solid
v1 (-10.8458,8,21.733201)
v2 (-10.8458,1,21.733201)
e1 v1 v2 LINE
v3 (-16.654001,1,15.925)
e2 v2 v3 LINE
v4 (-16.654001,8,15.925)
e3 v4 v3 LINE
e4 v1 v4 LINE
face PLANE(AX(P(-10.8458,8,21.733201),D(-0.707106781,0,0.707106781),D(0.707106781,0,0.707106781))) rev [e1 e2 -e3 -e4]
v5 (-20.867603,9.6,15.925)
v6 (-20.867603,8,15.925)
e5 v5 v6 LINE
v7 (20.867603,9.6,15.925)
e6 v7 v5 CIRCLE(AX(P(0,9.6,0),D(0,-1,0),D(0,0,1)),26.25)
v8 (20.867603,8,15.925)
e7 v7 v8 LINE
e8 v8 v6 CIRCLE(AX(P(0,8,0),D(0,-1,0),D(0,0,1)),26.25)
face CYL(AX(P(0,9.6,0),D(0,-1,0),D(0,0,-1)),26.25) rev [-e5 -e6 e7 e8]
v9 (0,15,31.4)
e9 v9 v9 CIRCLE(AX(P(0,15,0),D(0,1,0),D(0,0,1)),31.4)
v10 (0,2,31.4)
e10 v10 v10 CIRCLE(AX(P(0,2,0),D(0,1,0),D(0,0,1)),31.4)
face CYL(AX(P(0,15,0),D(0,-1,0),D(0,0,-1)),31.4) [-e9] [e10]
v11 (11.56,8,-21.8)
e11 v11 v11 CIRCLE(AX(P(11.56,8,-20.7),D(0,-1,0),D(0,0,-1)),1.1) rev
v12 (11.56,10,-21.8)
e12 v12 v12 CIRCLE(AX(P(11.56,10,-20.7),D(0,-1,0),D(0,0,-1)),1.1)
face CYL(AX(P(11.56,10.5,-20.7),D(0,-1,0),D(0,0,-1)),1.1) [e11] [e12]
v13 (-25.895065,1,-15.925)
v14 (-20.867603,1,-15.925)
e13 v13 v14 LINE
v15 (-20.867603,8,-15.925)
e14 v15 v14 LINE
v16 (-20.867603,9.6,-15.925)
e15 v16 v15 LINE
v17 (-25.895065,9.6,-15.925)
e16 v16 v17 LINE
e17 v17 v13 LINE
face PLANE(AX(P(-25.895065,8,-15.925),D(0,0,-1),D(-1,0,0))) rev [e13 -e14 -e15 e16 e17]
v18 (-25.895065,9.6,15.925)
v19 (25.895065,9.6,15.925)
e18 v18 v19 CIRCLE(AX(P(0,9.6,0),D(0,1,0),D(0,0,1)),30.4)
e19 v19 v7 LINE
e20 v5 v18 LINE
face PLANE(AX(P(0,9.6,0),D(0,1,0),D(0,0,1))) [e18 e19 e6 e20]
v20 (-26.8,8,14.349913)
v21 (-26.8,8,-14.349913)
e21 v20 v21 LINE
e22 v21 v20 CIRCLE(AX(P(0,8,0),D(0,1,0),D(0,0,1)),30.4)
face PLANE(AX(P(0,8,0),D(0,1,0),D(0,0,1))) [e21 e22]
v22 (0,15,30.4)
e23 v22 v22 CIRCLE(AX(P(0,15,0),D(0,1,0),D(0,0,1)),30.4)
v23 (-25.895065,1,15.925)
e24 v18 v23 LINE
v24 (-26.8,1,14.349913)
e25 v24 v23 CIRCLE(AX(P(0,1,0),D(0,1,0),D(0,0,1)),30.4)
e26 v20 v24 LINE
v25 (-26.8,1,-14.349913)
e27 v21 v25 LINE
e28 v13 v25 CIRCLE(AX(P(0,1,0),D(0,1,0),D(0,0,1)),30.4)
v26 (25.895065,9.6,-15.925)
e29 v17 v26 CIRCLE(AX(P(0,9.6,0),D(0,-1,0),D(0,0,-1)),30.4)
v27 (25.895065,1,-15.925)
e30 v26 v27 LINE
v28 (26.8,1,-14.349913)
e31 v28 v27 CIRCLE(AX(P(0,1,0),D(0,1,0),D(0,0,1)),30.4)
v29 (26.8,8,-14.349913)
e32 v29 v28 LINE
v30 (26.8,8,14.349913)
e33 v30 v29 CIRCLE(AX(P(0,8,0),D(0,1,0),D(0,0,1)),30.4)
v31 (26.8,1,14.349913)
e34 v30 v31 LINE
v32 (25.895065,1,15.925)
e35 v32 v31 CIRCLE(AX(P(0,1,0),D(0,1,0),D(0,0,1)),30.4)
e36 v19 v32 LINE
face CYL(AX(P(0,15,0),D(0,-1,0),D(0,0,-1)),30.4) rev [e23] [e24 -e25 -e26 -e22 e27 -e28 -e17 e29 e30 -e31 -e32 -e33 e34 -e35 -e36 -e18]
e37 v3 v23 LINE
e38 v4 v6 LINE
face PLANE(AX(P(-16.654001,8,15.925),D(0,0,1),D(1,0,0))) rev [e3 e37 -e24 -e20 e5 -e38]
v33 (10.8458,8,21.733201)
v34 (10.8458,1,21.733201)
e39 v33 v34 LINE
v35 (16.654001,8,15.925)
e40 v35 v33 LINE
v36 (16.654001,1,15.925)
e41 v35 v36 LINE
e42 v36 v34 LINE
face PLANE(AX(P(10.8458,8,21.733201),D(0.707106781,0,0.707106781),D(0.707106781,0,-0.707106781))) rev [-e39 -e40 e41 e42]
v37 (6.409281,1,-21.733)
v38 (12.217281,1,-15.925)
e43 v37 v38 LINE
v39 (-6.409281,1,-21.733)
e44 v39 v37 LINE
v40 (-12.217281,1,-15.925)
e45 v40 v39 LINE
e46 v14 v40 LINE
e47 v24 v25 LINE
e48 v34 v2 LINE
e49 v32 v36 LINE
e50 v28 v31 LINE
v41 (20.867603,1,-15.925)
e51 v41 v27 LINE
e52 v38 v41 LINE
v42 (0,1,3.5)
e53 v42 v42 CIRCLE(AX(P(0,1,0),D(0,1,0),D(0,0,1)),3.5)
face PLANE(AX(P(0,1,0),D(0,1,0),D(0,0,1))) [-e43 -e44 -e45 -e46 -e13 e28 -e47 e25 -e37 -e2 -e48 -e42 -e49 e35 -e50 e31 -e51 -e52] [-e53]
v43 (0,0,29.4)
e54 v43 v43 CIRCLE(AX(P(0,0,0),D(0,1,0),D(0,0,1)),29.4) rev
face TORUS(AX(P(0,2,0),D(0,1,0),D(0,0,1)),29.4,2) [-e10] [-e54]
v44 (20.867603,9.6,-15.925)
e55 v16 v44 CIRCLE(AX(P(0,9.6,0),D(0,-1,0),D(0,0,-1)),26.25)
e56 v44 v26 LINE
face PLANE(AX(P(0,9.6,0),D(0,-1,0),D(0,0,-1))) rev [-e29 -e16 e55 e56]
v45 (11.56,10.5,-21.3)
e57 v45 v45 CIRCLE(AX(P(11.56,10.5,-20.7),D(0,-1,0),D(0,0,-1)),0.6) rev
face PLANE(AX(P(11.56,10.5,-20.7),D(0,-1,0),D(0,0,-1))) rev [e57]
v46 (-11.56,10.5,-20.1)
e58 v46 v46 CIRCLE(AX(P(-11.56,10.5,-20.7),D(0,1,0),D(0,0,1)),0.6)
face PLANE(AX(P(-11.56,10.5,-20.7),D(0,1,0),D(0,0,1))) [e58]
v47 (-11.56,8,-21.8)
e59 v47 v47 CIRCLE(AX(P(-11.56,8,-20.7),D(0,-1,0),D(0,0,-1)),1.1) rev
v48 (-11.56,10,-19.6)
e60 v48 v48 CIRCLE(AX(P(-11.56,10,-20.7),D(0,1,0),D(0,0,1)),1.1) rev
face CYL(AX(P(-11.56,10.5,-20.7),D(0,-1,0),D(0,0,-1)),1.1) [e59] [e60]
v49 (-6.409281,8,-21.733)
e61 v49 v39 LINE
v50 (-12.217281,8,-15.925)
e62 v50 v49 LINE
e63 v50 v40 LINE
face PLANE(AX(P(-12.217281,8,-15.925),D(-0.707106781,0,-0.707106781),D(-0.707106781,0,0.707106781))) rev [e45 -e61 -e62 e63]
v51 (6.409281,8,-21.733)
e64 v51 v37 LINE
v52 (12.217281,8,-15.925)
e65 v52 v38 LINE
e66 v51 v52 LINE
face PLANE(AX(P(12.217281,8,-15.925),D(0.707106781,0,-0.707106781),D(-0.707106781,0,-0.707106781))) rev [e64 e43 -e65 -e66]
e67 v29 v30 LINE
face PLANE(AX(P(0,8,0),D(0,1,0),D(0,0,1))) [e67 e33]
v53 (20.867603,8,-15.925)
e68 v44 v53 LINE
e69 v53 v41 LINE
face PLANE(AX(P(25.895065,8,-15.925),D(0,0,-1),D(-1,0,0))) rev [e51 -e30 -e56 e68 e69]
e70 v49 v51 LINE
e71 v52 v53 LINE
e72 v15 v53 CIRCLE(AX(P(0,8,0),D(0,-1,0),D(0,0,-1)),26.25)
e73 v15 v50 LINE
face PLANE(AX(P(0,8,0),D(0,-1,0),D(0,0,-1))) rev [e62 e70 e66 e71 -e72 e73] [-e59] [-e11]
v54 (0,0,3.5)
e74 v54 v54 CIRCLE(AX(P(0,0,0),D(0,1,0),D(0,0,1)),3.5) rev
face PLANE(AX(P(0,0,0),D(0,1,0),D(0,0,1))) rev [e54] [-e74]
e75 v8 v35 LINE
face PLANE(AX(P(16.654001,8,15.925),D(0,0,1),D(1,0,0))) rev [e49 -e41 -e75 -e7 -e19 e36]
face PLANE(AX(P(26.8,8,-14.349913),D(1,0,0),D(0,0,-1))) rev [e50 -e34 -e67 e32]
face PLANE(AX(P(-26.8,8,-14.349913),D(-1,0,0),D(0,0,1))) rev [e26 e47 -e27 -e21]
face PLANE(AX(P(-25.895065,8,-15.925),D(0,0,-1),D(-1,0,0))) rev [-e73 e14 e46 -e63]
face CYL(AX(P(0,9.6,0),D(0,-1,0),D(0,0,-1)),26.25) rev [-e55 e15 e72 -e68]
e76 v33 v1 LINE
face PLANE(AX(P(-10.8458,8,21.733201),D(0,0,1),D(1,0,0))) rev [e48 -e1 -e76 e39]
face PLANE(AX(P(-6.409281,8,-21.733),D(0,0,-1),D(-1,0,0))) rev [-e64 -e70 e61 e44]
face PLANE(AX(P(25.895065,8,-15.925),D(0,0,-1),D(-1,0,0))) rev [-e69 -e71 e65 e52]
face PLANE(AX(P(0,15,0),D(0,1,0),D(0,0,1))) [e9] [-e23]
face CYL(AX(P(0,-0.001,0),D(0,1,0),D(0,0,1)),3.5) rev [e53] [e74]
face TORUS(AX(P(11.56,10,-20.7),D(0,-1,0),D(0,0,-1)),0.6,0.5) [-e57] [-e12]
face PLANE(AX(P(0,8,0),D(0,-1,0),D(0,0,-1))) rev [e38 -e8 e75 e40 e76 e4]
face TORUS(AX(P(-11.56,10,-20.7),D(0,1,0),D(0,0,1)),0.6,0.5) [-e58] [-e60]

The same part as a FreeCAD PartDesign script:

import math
import FreeCAD as App
import Part
import Sketcher


def edges_at(feature, points):
    """Names of the edges that pass closest to the given points."""
    edges = feature.Shape.Edges
    near = lambda p: min(range(len(edges)), key=lambda i: edges[i].distToShape(Part.Vertex(*p))[0])
    return sorted({f"Edge{near(p) + 1}" for p in points})


def faces_at(feature, points):
    """Names of the faces that lie closest to the given points."""
    faces = feature.Shape.Faces
    near = lambda p: min(range(len(faces)), key=lambda i: faces[i].distToShape(Part.Vertex(*p))[0])
    return sorted({f"Face{near(p) + 1}" for p in points})

doc = App.newDocument("Part")
body = doc.addObject("PartDesign::Body", "Body")

# Sketch on XZ plane
sketch1 = doc.addObject("Sketcher::SketchObject", "Sketch")
body.addObject(sketch1)
sketch1.AttachmentSupport = (doc.XZ_Plane, [""])
sketch1.MapMode = "FlatFace"
sketch1.addGeometry(Part.Circle(App.Vector(0, 0, 0), App.Vector(0, 0, 1), 31), False)
sketch1.addConstraint(Sketcher.Constraint("Coincident", 0, 3, -1, 1))
sketch1.addConstraint(Sketcher.Constraint("Diameter", 0, 62.8))
pad1 = doc.addObject("PartDesign::Pad", "Pad")
body.addObject(pad1)
pad1.Profile = sketch1
pad1.Length = 15
pad1.Reversed = True
doc.recompute()

thickness = doc.addObject("PartDesign::Thickness", "Thickness")
body.addObject(thickness)
thickness.Base = (pad1, faces_at(pad1, [(0, 15, 0)]))
thickness.Value = 1
thickness.Reversed = True
thickness.Join = "Intersection"
doc.recompute()

fillet = doc.addObject("PartDesign::Fillet", "Fillet")
body.addObject(fillet)
fillet.Base = (thickness, edges_at(thickness, [(0, 0, -31.4)]))
fillet.Radius = 2

# Sketch on XZ plane
sketch2 = doc.addObject("Sketcher::SketchObject", "Sketch001")
body.addObject(sketch2)
sketch2.AttachmentSupport = (doc.XZ_Plane, [""])
sketch2.MapMode = "FlatFace"
sketch2.AttachmentOffset = App.Placement(App.Vector(0, 0, -1), App.Rotation())
sketch2.addGeometry(Part.Circle(App.Vector(0, 0, 0), App.Vector(0, 0, 1), 3.5), False)
sketch2.addConstraint(Sketcher.Constraint("Coincident", 0, 3, -1, 1))
sketch2.addConstraint(Sketcher.Constraint("Diameter", 0, 7.0))
pocket1 = doc.addObject("PartDesign::Pocket", "Pocket")
body.addObject(pocket1)
pocket1.Profile = sketch2
pocket1.Type = "UpToFirst"
pocket1.Reversed = True

# Sketch on XZ plane
sketch3 = doc.addObject("Sketcher::SketchObject", "Sketch002")
body.addObject(sketch3)
sketch3.AttachmentSupport = (doc.XZ_Plane, [""])
sketch3.MapMode = "FlatFace"
sketch3.AttachmentOffset = App.Placement(App.Vector(0, 0, -1), App.Rotation())
sketch3.addGeometry(Part.LineSegment(App.Vector(-26, -16, 0), App.Vector(-12, -16, 0)), False)
sketch3.addGeometry(Part.LineSegment(App.Vector(-12, -16, 0), App.Vector(-6, -22, 0)), False)
sketch3.addGeometry(Part.LineSegment(App.Vector(-6, -22, 0), App.Vector(6, -22, 0)), False)
sketch3.addGeometry(Part.LineSegment(App.Vector(6, -22, 0), App.Vector(12, -16, 0)), False)
sketch3.addGeometry(Part.LineSegment(App.Vector(12, -16, 0), App.Vector(26, -16, 0)), False)
sketch3.addGeometry(Part.ArcOfCircle(Part.Circle(App.Vector(0, 0, 0), App.Vector(0, 0, 1), 30), math.radians(-148), math.radians(-32)), False)
sketch3.addGeometry(Part.LineSegment(App.Vector(-11, 22, 0), App.Vector(-17, 16, 0)), False)
sketch3.addGeometry(Part.LineSegment(App.Vector(-17, 16, 0), App.Vector(-26, 16, 0)), False)
sketch3.addGeometry(Part.ArcOfCircle(Part.Circle(App.Vector(0, 0, 0), App.Vector(0, 0, 1), 30), math.radians(32), math.radians(148)), False)
sketch3.addGeometry(Part.LineSegment(App.Vector(26, 16, 0), App.Vector(17, 16, 0)), False)
sketch3.addGeometry(Part.LineSegment(App.Vector(17, 16, 0), App.Vector(11, 22, 0)), False)
sketch3.addGeometry(Part.LineSegment(App.Vector(11, 22, 0), App.Vector(-11, 22, 0)), False)
sketch3.addGeometry(Part.LineSegment(App.Vector(27, -14, 0), App.Vector(27, 14, 0)), False)
sketch3.addGeometry(Part.ArcOfCircle(Part.Circle(App.Vector(0, 0, 0), App.Vector(0, 0, 1), 30), math.radians(-28), math.radians(28)), False)
sketch3.addGeometry(Part.LineSegment(App.Vector(-27, 14, 0), App.Vector(-27, -14, 0)), False)
sketch3.addGeometry(Part.ArcOfCircle(Part.Circle(App.Vector(0, 0, 0), App.Vector(0, 0, 1), 30), math.radians(152), math.radians(208)), False)
sketch3.addConstraint(Sketcher.Constraint("Coincident", 0, 2, 1, 1))
sketch3.addConstraint(Sketcher.Constraint("Coincident", 1, 2, 2, 1))
sketch3.addConstraint(Sketcher.Constraint("Coincident", 2, 2, 3, 1))
sketch3.addConstraint(Sketcher.Constraint("Coincident", 3, 2, 4, 1))
sketch3.addConstraint(Sketcher.Constraint("Coincident", 4, 2, 5, 2))
sketch3.addConstraint(Sketcher.Constraint("Coincident", 5, 1, 0, 1))
sketch3.addConstraint(Sketcher.Constraint("Coincident", 6, 2, 7, 1))
sketch3.addConstraint(Sketcher.Constraint("Coincident", 7, 2, 8, 2))
sketch3.addConstraint(Sketcher.Constraint("Coincident", 8, 1, 9, 1))
sketch3.addConstraint(Sketcher.Constraint("Coincident", 9, 2, 10, 1))
sketch3.addConstraint(Sketcher.Constraint("Coincident", 10, 2, 11, 1))
sketch3.addConstraint(Sketcher.Constraint("Coincident", 11, 2, 6, 1))
sketch3.addConstraint(Sketcher.Constraint("Coincident", 12, 1, 13, 1))
sketch3.addConstraint(Sketcher.Constraint("Coincident", 13, 2, 12, 2))
sketch3.addConstraint(Sketcher.Constraint("Coincident", 14, 1, 15, 1))
sketch3.addConstraint(Sketcher.Constraint("Coincident", 15, 2, 14, 2))
sketch3.addConstraint(Sketcher.Constraint("Horizontal", 0))
sketch3.addConstraint(Sketcher.Constraint("Horizontal", 2))
sketch3.addConstraint(Sketcher.Constraint("Horizontal", 4))
sketch3.addConstraint(Sketcher.Constraint("Horizontal", 7))
sketch3.addConstraint(Sketcher.Constraint("Horizontal", 9))
sketch3.addConstraint(Sketcher.Constraint("Horizontal", 11))
sketch3.addConstraint(Sketcher.Constraint("Vertical", 12))
sketch3.addConstraint(Sketcher.Constraint("Vertical", 14))
sketch3.addConstraint(Sketcher.Constraint("Coincident", 5, 3, -1, 1))
sketch3.addConstraint(Sketcher.Constraint("Coincident", 8, 3, -1, 1))
sketch3.addConstraint(Sketcher.Constraint("Coincident", 13, 3, -1, 1))
sketch3.addConstraint(Sketcher.Constraint("Coincident", 15, 3, -1, 1))
sketch3.addConstraint(Sketcher.Constraint("Equal", 5, 8))
sketch3.addConstraint(Sketcher.Constraint("Equal", 8, 13))
sketch3.addConstraint(Sketcher.Constraint("Equal", 13, 15))
sketch3.addConstraint(Sketcher.Constraint("Symmetric", 0, 2, 3, 2, -2))
sketch3.addConstraint(Sketcher.Constraint("Symmetric", 6, 2, 9, 2, -2))
sketch3.addConstraint(Sketcher.Constraint("Perpendicular", 1, 3))
sketch3.addConstraint(Sketcher.Constraint("Parallel", 3, 6))
sketch3.addConstraint(Sketcher.Constraint("Perpendicular", 6, 10))
sketch3.addConstraint(Sketcher.Constraint("Horizontal", 13, 2, 14, 1))
sketch3.addConstraint(Sketcher.Constraint("Vertical", 5, 1, 7, 2))
sketch3.addConstraint(Sketcher.Constraint("Equal", 1, 3))
sketch3.addConstraint(Sketcher.Constraint("Radius", 5, 30.4))
sketch3.addConstraint(Sketcher.Constraint("DistanceX", -1, 1, 12, 1, 26.8))
sketch3.addConstraint(Sketcher.Constraint("DistanceY", 0, 2, 6, 2, 31.85))
sketch3.addConstraint(Sketcher.Constraint("DistanceX", 11, 2, 11, 1, 21.6916))
sketch3.addConstraint(Sketcher.Constraint("DistanceY", 1, 2, -1, 1, 21.733))
sketch3.addConstraint(Sketcher.Constraint("DistanceX", 6, 2, -1, 1, 16.654001))
sketch3.addConstraint(Sketcher.Constraint("DistanceX", 0, 1, 0, 2, 13.677783))
pad2 = doc.addObject("PartDesign::Pad", "Pad001")
body.addObject(pad2)
pad2.Profile = sketch3
pad2.Length = 7
pad2.Reversed = True

# Sketch on XZ plane
sketch4 = doc.addObject("Sketcher::SketchObject", "Sketch003")
body.addObject(sketch4)
sketch4.AttachmentSupport = (doc.XZ_Plane, [""])
sketch4.MapMode = "FlatFace"
sketch4.AttachmentOffset = App.Placement(App.Vector(0, 0, -8), App.Rotation())
sketch4.addGeometry(Part.LineSegment(App.Vector(-26, -16, 0), App.Vector(-21, -16, 0)), False)
sketch4.addGeometry(Part.ArcOfCircle(Part.Circle(App.Vector(0, 0, 0), App.Vector(0, 0, 1), 26), math.radians(-143), math.radians(-37)), False)
sketch4.addGeometry(Part.LineSegment(App.Vector(21, -16, 0), App.Vector(26, -16, 0)), False)
sketch4.addGeometry(Part.ArcOfCircle(Part.Circle(App.Vector(0, 0, 0), App.Vector(0, 0, 1), 30), math.radians(-148), math.radians(-32)), False)
sketch4.addConstraint(Sketcher.Constraint("Coincident", 0, 2, 1, 1))
sketch4.addConstraint(Sketcher.Constraint("Coincident", 1, 2, 2, 1))
sketch4.addConstraint(Sketcher.Constraint("Coincident", 2, 2, 3, 2))
sketch4.addConstraint(Sketcher.Constraint("Coincident", 3, 1, 0, 1))
sketch4.addConstraint(Sketcher.Constraint("Horizontal", 0))
sketch4.addConstraint(Sketcher.Constraint("Horizontal", 2))
sketch4.addConstraint(Sketcher.Constraint("Coincident", 1, 3, -1, 1))
sketch4.addConstraint(Sketcher.Constraint("Coincident", 3, 3, -1, 1))
sketch4.addConstraint(Sketcher.Constraint("Horizontal", 0, 2, 1, 2))
sketch4.addConstraint(Sketcher.Constraint("Radius", 3, 30.4))
sketch4.addConstraint(Sketcher.Constraint("Radius", 1, 26.25))
sketch4.addConstraint(Sketcher.Constraint("DistanceY", 0, 2, -1, 1, 15.925))
pad3 = doc.addObject("PartDesign::Pad", "Pad002")
body.addObject(pad3)
pad3.Profile = sketch4
pad3.Length = 1.6
pad3.Reversed = True

# Sketch on XZ plane
sketch5 = doc.addObject("Sketcher::SketchObject", "Sketch004")
body.addObject(sketch5)
sketch5.AttachmentSupport = (doc.XZ_Plane, [""])
sketch5.MapMode = "FlatFace"
sketch5.AttachmentOffset = App.Placement(App.Vector(0, 0, -8), App.Rotation())
sketch5.addGeometry(Part.LineSegment(App.Vector(-21, 16, 0), App.Vector(-26, 16, 0)), False)
sketch5.addGeometry(Part.ArcOfCircle(Part.Circle(App.Vector(0, 0, 0), App.Vector(0, 0, 1), 30), math.radians(32), math.radians(148)), False)
sketch5.addGeometry(Part.LineSegment(App.Vector(26, 16, 0), App.Vector(21, 16, 0)), False)
sketch5.addGeometry(Part.ArcOfCircle(Part.Circle(App.Vector(0, 0, 0), App.Vector(0, 0, 1), 26), math.radians(37), math.radians(143)), False)
sketch5.addConstraint(Sketcher.Constraint("Coincident", 0, 2, 1, 2))
sketch5.addConstraint(Sketcher.Constraint("Coincident", 1, 1, 2, 1))
sketch5.addConstraint(Sketcher.Constraint("Coincident", 2, 2, 3, 1))
sketch5.addConstraint(Sketcher.Constraint("Coincident", 3, 2, 0, 1))
sketch5.addConstraint(Sketcher.Constraint("Horizontal", 0))
sketch5.addConstraint(Sketcher.Constraint("Horizontal", 2))
sketch5.addConstraint(Sketcher.Constraint("Coincident", 1, 3, -1, 1))
sketch5.addConstraint(Sketcher.Constraint("Coincident", 3, 3, -1, 1))
sketch5.addConstraint(Sketcher.Constraint("Horizontal", 0, 2, 1, 1))
sketch5.addConstraint(Sketcher.Constraint("Radius", 1, 30.4))
sketch5.addConstraint(Sketcher.Constraint("Radius", 3, 26.25))
sketch5.addConstraint(Sketcher.Constraint("DistanceY", -1, 1, 0, 2, 15.925))
pad4 = doc.addObject("PartDesign::Pad", "Pad003")
body.addObject(pad4)
pad4.Profile = sketch5
pad4.Length = 1.6
pad4.Reversed = True

# Sketch on XZ plane
sketch6 = doc.addObject("Sketcher::SketchObject", "Sketch005")
body.addObject(sketch6)
sketch6.AttachmentSupport = (doc.XZ_Plane, [""])
sketch6.MapMode = "FlatFace"
sketch6.AttachmentOffset = App.Placement(App.Vector(0, 0, -8), App.Rotation())
sketch6.addGeometry(Part.Circle(App.Vector(-11.6, -20.7, 0), App.Vector(0, 0, 1), 1.1), False)
sketch6.addGeometry(Part.Circle(App.Vector(11.6, -20.7, 0), App.Vector(0, 0, 1), 1.1), False)
sketch6.addConstraint(Sketcher.Constraint("Equal", 0, 1))
sketch6.addConstraint(Sketcher.Constraint("Symmetric", 0, 3, 1, 3, -2))
sketch6.addConstraint(Sketcher.Constraint("Diameter", 0, 2.2))
sketch6.addConstraint(Sketcher.Constraint("DistanceY", 0, 3, -1, 1, 20.7))
sketch6.addConstraint(Sketcher.Constraint("DistanceX", 0, 3, -1, 1, 11.56))
pad5 = doc.addObject("PartDesign::Pad", "Pad004")
body.addObject(pad5)
pad5.Profile = sketch6
pad5.Length = 2.5
pad5.Reversed = True
doc.recompute()

fillet2 = doc.addObject("PartDesign::Fillet", "Fillet001")
body.addObject(fillet2)
fillet2.Base = (pad5, edges_at(pad5, [(11.56, 10.5, -19.6), (-11.56, 10.5, -19.6)]))
fillet2.Radius = 0.5

doc.recompute()
